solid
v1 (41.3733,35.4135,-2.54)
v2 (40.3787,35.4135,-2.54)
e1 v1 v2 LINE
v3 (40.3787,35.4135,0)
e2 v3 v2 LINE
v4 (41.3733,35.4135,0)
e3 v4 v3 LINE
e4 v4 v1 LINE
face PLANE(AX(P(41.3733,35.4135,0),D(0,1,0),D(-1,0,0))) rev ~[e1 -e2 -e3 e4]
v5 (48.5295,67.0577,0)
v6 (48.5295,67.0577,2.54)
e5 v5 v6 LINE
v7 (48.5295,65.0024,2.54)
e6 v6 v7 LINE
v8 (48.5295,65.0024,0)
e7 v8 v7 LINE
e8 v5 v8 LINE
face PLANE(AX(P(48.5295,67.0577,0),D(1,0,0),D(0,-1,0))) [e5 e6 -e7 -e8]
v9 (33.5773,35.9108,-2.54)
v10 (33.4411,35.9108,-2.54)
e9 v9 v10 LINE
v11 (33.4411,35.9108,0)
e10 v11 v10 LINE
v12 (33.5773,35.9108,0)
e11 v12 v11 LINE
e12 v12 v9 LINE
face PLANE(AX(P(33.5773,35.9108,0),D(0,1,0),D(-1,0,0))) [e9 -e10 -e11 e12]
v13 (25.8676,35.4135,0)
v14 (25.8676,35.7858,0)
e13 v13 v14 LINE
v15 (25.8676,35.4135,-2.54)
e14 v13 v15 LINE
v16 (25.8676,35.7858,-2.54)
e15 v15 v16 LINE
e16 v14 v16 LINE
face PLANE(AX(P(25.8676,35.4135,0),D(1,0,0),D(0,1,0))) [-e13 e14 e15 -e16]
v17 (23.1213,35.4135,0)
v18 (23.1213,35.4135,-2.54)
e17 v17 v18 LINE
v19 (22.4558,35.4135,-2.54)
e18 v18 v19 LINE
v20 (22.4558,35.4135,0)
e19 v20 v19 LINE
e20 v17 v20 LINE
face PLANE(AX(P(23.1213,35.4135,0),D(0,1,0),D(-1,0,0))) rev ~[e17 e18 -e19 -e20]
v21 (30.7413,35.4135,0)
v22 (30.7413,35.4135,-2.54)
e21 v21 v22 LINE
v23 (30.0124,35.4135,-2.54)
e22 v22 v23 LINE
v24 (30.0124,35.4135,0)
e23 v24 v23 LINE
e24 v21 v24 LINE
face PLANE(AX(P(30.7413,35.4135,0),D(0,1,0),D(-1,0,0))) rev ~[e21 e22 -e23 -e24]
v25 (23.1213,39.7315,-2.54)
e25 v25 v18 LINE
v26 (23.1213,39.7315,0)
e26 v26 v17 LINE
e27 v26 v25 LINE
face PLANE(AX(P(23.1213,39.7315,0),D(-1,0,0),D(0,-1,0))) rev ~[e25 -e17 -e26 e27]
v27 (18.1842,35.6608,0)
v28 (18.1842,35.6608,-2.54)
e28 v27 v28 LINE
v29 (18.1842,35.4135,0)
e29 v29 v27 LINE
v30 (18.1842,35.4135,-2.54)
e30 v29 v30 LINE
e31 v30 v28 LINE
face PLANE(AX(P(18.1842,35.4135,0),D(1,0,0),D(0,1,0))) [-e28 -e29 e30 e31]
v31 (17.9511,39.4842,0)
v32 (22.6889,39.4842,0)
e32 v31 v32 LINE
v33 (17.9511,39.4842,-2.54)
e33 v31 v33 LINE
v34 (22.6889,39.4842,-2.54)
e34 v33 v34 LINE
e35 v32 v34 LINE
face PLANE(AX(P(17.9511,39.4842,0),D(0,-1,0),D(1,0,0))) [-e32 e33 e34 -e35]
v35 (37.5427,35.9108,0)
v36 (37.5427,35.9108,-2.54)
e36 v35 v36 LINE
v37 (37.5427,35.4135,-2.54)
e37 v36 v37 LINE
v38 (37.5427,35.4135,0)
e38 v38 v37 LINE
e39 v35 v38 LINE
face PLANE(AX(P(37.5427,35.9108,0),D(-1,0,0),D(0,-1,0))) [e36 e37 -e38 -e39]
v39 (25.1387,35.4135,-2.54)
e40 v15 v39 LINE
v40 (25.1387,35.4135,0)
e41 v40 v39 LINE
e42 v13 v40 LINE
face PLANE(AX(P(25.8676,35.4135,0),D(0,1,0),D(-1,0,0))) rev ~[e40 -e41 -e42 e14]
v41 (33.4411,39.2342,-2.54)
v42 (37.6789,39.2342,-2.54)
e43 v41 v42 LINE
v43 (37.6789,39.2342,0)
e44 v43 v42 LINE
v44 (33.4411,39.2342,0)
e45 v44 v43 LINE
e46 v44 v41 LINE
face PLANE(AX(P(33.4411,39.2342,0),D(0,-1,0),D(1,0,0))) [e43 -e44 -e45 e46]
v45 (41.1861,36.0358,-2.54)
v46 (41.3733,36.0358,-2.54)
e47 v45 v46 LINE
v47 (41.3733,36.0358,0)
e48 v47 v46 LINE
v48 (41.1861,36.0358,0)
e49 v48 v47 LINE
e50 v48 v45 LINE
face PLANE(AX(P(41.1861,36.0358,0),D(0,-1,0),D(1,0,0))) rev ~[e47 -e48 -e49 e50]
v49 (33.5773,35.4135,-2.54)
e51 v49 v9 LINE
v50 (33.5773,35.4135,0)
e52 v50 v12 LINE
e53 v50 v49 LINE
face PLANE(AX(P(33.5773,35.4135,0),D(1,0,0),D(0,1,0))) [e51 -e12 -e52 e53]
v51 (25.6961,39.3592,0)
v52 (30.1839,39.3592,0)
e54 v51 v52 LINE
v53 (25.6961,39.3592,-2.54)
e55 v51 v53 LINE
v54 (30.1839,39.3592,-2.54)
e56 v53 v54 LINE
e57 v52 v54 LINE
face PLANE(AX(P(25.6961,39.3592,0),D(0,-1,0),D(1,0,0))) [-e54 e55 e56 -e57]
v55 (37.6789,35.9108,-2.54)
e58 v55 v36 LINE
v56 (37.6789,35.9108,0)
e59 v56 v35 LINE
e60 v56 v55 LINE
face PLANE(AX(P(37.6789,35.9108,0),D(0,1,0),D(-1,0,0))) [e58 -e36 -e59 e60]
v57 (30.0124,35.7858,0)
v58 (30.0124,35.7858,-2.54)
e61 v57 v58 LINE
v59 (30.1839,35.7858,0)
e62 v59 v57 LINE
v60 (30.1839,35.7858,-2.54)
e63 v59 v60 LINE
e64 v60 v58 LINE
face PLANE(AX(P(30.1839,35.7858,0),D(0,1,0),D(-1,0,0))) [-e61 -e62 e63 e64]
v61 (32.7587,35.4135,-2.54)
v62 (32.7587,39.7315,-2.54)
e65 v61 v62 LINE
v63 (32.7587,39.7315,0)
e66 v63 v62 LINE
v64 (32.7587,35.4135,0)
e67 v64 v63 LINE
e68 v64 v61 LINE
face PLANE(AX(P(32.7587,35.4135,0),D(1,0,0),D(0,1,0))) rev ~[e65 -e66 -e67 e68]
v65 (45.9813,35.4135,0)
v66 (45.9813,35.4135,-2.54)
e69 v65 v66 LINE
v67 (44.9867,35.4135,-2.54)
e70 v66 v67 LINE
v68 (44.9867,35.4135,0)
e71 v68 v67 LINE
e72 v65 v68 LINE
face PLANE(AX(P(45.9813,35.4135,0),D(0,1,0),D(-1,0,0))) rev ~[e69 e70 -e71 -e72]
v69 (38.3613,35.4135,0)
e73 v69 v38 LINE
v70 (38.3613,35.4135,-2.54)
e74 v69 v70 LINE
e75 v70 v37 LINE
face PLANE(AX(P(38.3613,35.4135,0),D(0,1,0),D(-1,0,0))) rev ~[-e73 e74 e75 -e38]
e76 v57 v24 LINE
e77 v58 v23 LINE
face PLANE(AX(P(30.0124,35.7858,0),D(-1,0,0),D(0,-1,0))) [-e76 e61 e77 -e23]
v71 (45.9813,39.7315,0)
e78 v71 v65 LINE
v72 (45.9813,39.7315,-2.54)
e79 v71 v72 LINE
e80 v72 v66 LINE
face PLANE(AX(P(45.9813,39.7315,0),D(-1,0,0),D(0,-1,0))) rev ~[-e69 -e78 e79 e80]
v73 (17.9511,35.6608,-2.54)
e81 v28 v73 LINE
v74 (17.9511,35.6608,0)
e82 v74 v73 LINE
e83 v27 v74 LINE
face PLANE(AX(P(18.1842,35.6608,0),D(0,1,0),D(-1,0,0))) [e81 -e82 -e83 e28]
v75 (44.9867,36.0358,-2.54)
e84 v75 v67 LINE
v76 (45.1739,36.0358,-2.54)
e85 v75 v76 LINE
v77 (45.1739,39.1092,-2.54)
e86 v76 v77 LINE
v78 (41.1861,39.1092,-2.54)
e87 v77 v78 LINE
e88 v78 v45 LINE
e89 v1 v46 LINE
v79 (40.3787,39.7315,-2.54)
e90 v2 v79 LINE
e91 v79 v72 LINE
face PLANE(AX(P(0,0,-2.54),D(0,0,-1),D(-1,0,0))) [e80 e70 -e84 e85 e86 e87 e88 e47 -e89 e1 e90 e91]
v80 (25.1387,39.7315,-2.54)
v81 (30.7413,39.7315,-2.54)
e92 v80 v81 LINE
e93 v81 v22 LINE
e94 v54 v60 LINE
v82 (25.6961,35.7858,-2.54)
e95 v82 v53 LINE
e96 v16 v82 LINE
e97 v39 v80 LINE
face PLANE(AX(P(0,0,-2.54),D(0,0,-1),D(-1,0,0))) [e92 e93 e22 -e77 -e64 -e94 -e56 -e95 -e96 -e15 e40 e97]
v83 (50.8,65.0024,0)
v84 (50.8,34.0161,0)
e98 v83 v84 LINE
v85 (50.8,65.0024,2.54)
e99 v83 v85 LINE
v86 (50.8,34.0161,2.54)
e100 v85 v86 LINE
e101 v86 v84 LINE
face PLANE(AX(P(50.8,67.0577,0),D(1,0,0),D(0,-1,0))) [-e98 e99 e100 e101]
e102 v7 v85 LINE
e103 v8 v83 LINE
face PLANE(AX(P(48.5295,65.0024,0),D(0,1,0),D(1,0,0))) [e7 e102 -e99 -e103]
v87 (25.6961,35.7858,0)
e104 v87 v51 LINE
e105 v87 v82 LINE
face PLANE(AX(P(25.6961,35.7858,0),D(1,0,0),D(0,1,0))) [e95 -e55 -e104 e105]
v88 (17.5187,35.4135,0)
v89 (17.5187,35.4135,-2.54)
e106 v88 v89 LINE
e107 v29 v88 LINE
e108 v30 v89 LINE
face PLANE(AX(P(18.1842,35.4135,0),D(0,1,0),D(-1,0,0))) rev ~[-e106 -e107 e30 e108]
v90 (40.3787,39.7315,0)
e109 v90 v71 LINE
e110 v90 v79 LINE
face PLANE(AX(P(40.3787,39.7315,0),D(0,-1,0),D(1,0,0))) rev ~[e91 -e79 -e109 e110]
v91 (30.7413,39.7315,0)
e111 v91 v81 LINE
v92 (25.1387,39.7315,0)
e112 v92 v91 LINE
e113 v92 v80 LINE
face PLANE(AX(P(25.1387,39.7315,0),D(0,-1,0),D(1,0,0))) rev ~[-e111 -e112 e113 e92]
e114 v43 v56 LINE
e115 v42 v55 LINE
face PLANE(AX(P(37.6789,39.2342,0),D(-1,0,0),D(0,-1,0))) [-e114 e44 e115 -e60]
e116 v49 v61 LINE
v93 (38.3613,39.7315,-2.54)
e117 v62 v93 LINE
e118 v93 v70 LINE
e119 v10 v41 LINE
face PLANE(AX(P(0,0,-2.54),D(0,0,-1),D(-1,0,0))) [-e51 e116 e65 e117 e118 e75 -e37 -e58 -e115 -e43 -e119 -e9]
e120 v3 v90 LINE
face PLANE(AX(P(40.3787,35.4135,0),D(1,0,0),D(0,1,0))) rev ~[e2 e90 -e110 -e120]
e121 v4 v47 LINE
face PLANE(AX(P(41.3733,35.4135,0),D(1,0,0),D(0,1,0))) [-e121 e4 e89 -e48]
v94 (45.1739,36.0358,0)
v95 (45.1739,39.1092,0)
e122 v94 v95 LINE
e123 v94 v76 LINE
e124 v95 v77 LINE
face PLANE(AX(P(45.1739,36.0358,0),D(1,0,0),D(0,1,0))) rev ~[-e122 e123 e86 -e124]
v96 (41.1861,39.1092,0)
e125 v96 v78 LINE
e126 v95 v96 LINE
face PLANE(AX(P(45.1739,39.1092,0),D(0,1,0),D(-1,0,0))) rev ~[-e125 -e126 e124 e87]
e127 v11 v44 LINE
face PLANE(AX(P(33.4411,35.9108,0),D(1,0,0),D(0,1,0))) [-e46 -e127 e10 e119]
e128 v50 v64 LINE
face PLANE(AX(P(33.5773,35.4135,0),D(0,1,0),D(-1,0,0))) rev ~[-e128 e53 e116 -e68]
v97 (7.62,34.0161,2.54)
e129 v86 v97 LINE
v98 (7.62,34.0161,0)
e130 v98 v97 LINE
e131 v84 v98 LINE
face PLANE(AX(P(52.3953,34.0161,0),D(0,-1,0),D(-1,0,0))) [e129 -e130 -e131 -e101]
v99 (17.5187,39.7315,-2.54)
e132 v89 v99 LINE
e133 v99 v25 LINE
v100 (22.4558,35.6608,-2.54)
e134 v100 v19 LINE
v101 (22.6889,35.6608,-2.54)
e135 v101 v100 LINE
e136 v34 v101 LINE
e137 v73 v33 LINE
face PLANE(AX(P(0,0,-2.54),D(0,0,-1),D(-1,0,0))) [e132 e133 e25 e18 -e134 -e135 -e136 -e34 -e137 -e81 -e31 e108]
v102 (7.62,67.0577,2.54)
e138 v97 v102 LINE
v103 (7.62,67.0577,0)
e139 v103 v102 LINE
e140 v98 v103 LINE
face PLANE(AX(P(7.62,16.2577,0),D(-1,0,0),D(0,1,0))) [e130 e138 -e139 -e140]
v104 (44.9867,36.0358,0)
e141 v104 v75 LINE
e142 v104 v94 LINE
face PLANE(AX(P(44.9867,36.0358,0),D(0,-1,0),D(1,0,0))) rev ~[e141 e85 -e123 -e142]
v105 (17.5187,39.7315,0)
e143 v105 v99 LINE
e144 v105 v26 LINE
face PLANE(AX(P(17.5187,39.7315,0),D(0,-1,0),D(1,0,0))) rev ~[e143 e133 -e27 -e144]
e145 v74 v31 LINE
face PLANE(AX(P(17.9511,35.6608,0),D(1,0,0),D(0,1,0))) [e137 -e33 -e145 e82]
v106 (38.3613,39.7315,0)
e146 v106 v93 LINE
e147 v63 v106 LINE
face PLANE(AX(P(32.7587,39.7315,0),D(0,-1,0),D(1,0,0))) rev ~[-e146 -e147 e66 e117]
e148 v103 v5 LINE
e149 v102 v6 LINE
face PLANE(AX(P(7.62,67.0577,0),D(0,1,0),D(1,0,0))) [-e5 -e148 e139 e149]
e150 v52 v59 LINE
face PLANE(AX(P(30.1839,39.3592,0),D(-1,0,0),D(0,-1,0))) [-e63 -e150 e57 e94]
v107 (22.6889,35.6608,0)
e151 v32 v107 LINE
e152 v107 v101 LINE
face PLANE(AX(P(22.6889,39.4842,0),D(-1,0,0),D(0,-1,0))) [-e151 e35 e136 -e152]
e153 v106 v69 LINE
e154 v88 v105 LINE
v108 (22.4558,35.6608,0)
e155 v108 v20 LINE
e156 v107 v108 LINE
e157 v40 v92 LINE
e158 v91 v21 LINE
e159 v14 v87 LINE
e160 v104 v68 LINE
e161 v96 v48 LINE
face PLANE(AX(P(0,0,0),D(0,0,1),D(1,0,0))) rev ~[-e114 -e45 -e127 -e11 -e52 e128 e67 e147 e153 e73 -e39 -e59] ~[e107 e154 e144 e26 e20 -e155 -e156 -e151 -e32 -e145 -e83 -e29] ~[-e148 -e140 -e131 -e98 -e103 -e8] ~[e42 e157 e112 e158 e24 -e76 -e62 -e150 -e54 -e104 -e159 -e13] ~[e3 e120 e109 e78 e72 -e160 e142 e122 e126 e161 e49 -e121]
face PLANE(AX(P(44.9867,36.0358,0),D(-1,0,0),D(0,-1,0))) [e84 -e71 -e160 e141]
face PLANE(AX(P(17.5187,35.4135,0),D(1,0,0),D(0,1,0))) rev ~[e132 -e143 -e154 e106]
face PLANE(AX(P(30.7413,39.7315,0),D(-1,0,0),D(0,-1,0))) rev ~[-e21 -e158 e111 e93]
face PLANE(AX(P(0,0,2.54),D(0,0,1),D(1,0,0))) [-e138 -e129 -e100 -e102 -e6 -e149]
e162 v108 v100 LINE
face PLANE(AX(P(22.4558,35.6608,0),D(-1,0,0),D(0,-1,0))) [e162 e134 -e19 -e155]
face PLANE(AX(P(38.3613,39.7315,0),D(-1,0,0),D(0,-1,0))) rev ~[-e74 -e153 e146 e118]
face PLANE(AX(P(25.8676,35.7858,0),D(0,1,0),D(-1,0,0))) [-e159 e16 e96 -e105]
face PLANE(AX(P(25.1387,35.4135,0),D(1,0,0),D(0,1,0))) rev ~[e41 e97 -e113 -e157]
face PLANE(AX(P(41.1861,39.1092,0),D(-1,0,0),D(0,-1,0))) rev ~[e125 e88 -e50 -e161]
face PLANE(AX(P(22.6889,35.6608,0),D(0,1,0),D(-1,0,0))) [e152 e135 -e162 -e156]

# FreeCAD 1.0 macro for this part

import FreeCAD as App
import Part
import Sketcher
Q = App.Units.Quantity

doc = App.newDocument("Part")
params = doc.addObject("Spreadsheet::Sheet", "Params")
for row, (alias, value) in enumerate([
    ("sketch1_height", "2 in"),
    ("sketch1_width", "1.7 in"),
    ("pad1_length", "0.1 in"),
    ("pocket1_length", "0.1 in"),
    ("sketch3_width", "0.157 in"),
    ("sketch3_height", "0.121 in"),
    ("sketch3_height2", "0.17 in"),
    ("pad2_length", "0.1 in"),
    ("pocket2_length", "0.1 in"),
], start=1):
    params.set(f"A{row}", alias)
    params.set(f"B{row}", "=" + value)
    params.setAlias(f"B{row}", alias)

body = doc.addObject("PartDesign::Body", "Body")

sketch1 = body.newObject("Sketcher::SketchObject", "Sketch")
sketch1.AttachmentSupport = (doc.getObject("XY_Plane"), [""])
sketch1.MapMode = "FlatFace"
sketch1.addGeometry(Part.LineSegment(App.Vector(51, 67, 0), App.Vector(8, 67, 0)), False)
sketch1.addGeometry(Part.LineSegment(App.Vector(8, 67, 0), App.Vector(8, 16, 0)), False)
sketch1.addGeometry(Part.LineSegment(App.Vector(8, 16, 0), App.Vector(51, 16, 0)), False)
sketch1.addGeometry(Part.LineSegment(App.Vector(51, 16, 0), App.Vector(51, 67, 0)), False)
sketch1.addConstraint(Sketcher.Constraint("Coincident", 0, 2, 1, 1))
sketch1.addConstraint(Sketcher.Constraint("Coincident", 1, 2, 2, 1))
sketch1.addConstraint(Sketcher.Constraint("Coincident", 2, 2, 3, 1))
sketch1.addConstraint(Sketcher.Constraint("Coincident", 3, 2, 0, 1))
sketch1.addConstraint(Sketcher.Constraint("Horizontal", 0))
sketch1.addConstraint(Sketcher.Constraint("Vertical", 1))
sketch1.addConstraint(Sketcher.Constraint("Horizontal", 2))
sketch1.addConstraint(Sketcher.Constraint("Vertical", 3))
sketch1.addConstraint(Sketcher.Constraint("DistanceY", 1, 2, 1, 1, Q("2 in")))
sketch1.addConstraint(Sketcher.Constraint("DistanceX", 0, 2, 0, 1, Q("1.7 in")))
sketch1.addConstraint(Sketcher.Constraint("DistanceX", -1, 1, 2, 2, Q("2 in")))
sketch1.addConstraint(Sketcher.Constraint("DistanceY", -1, 1, 0, 2, Q("67.0577 mm")))
sketch1.setExpression("Constraints[8]", "Params.sketch1_height")
sketch1.setExpression("Constraints[9]", "Params.sketch1_width")
pad1 = body.newObject("PartDesign::Pad", "Pad")
pad1.Profile = sketch1
pad1.setExpression("Length", "Params.pad1_length")

sketch2 = body.newObject("Sketcher::SketchObject", "Sketch001")
sketch2.AttachmentSupport = (doc.getObject("XY_Plane"), [""])
sketch2.MapMode = "FlatFace"
sketch2.addGeometry(Part.LineSegment(App.Vector(48.5, 67.1, 0), App.Vector(50.8, 67.1, 0)), False)
sketch2.addGeometry(Part.LineSegment(App.Vector(50.8, 67.1, 0), App.Vector(50.8, 65, 0)), False)
sketch2.addGeometry(Part.LineSegment(App.Vector(50.8, 65, 0), App.Vector(48.5, 65, 0)), False)
sketch2.addGeometry(Part.LineSegment(App.Vector(48.5, 65, 0), App.Vector(48.5, 67.1, 0)), False)
sketch2.addConstraint(Sketcher.Constraint("Coincident", 0, 2, 1, 1))
sketch2.addConstraint(Sketcher.Constraint("Coincident", 1, 2, 2, 1))
sketch2.addConstraint(Sketcher.Constraint("Coincident", 2, 2, 3, 1))
sketch2.addConstraint(Sketcher.Constraint("Coincident", 3, 2, 0, 1))
sketch2.addConstraint(Sketcher.Constraint("Horizontal", 0))
sketch2.addConstraint(Sketcher.Constraint("Vertical", 1))
sketch2.addConstraint(Sketcher.Constraint("Horizontal", 2))
sketch2.addConstraint(Sketcher.Constraint("Vertical", 3))
sketch2.addConstraint(Sketcher.Constraint("DistanceX", -1, 1, 0, 2, Q("2 in")))
sketch2.addConstraint(Sketcher.Constraint("DistanceX", 0, 1, 0, 2, Q("0.0894 in")))
sketch2.addConstraint(Sketcher.Constraint("DistanceY", 1, 2, 1, 1, Q("2.0553 mm")))
sketch2.addConstraint(Sketcher.Constraint("DistanceY", -1, 1, 0, 2, Q("67.0577 mm")))
pocket1 = body.newObject("PartDesign::Pocket", "Pocket")
pocket1.Profile = sketch2
pocket1.setExpression("Length", "Params.pocket1_length")
pocket1.Reversed = True

sketch3 = body.newObject("Sketcher::SketchObject", "Sketch002")
sketch3.AttachmentSupport = (doc.getObject("XY_Plane"), [""])
sketch3.MapMode = "FlatFace"
sketch3.addGeometry(Part.LineSegment(App.Vector(45.17, 36.04, 0), App.Vector(45.17, 39.11, 0)), False)
sketch3.addGeometry(Part.LineSegment(App.Vector(45.17, 39.11, 0), App.Vector(41.19, 39.11, 0)), False)
sketch3.addGeometry(Part.LineSegment(App.Vector(41.19, 39.11, 0), App.Vector(41.19, 36.04, 0)), False)
sketch3.addGeometry(Part.LineSegment(App.Vector(41.19, 36.04, 0), App.Vector(41.37, 36.04, 0)), False)
sketch3.addGeometry(Part.LineSegment(App.Vector(41.37, 36.04, 0), App.Vector(41.37, 35.41, 0)), False)
sketch3.addGeometry(Part.LineSegment(App.Vector(41.37, 35.41, 0), App.Vector(40.38, 35.41, 0)), False)
sketch3.addGeometry(Part.LineSegment(App.Vector(40.38, 35.41, 0), App.Vector(40.38, 39.73, 0)), False)
sketch3.addGeometry(Part.LineSegment(App.Vector(40.38, 39.73, 0), App.Vector(45.98, 39.73, 0)), False)
sketch3.addGeometry(Part.LineSegment(App.Vector(45.98, 39.73, 0), App.Vector(45.98, 35.41, 0)), False)
sketch3.addGeometry(Part.LineSegment(App.Vector(45.98, 35.41, 0), App.Vector(44.99, 35.41, 0)), False)
sketch3.addGeometry(Part.LineSegment(App.Vector(44.99, 35.41, 0), App.Vector(44.99, 36.04, 0)), False)
sketch3.addGeometry(Part.LineSegment(App.Vector(44.99, 36.04, 0), App.Vector(45.17, 36.04, 0)), False)
sketch3.addGeometry(Part.LineSegment(App.Vector(32.76, 35.41, 0), App.Vector(32.76, 39.73, 0)), False)
sketch3.addGeometry(Part.LineSegment(App.Vector(32.76, 39.73, 0), App.Vector(38.36, 39.73, 0)), False)
sketch3.addGeometry(Part.LineSegment(App.Vector(38.36, 39.73, 0), App.Vector(38.36, 35.41, 0)), False)
sketch3.addGeometry(Part.LineSegment(App.Vector(38.36, 35.41, 0), App.Vector(37.54, 35.41, 0)), False)
sketch3.addGeometry(Part.LineSegment(App.Vector(37.54, 35.41, 0), App.Vector(37.54, 35.91, 0)), False)
sketch3.addGeometry(Part.LineSegment(App.Vector(37.54, 35.91, 0), App.Vector(37.68, 35.91, 0)), False)
sketch3.addGeometry(Part.LineSegment(App.Vector(37.68, 35.91, 0), App.Vector(37.68, 39.23, 0)), False)
sketch3.addGeometry(Part.LineSegment(App.Vector(37.68, 39.23, 0), App.Vector(33.44, 39.23, 0)), False)
sketch3.addGeometry(Part.LineSegment(App.Vector(33.44, 39.23, 0), App.Vector(33.44, 35.91, 0)), False)
sketch3.addGeometry(Part.LineSegment(App.Vector(33.44, 35.91, 0), App.Vector(33.58, 35.91, 0)), False)
sketch3.addGeometry(Part.LineSegment(App.Vector(33.58, 35.91, 0), App.Vector(33.58, 35.41, 0)), False)
sketch3.addGeometry(Part.LineSegment(App.Vector(33.58, 35.41, 0), App.Vector(32.76, 35.41, 0)), False)
sketch3.addGeometry(Part.LineSegment(App.Vector(25.14, 35.41, 0), App.Vector(25.14, 39.73, 0)), False)
sketch3.addGeometry(Part.LineSegment(App.Vector(25.14, 39.73, 0), App.Vector(30.74, 39.73, 0)), False)
sketch3.addGeometry(Part.LineSegment(App.Vector(30.74, 39.73, 0), App.Vector(30.74, 35.41, 0)), False)
sketch3.addGeometry(Part.LineSegment(App.Vector(30.74, 35.41, 0), App.Vector(30.01, 35.41, 0)), False)
sketch3.addGeometry(Part.LineSegment(App.Vector(30.01, 35.41, 0), App.Vector(30.01, 35.79, 0)), False)
sketch3.addGeometry(Part.LineSegment(App.Vector(30.01, 35.79, 0), App.Vector(30.18, 35.79, 0)), False)
sketch3.addGeometry(Part.LineSegment(App.Vector(30.18, 35.79, 0), App.Vector(30.18, 39.36, 0)), False)
sketch3.addGeometry(Part.LineSegment(App.Vector(30.18, 39.36, 0), App.Vector(25.7, 39.36, 0)), False)
sketch3.addGeometry(Part.LineSegment(App.Vector(25.7, 39.36, 0), App.Vector(25.7, 35.79, 0)), False)
sketch3.addGeometry(Part.LineSegment(App.Vector(25.7, 35.79, 0), App.Vector(25.87, 35.79, 0)), False)
sketch3.addGeometry(Part.LineSegment(App.Vector(25.87, 35.79, 0), App.Vector(25.87, 35.41, 0)), False)
sketch3.addGeometry(Part.LineSegment(App.Vector(25.87, 35.41, 0), App.Vector(25.14, 35.41, 0)), False)
sketch3.addGeometry(Part.LineSegment(App.Vector(17.52, 35.41, 0), App.Vector(17.52, 39.73, 0)), False)
sketch3.addGeometry(Part.LineSegment(App.Vector(17.52, 39.73, 0), App.Vector(23.12, 39.73, 0)), False)
sketch3.addGeometry(Part.LineSegment(App.Vector(23.12, 39.73, 0), App.Vector(23.12, 35.41, 0)), False)
sketch3.addGeometry(Part.LineSegment(App.Vector(23.12, 35.41, 0), App.Vector(22.46, 35.41, 0)), False)
sketch3.addGeometry(Part.LineSegment(App.Vector(22.46, 35.41, 0), App.Vector(22.46, 35.66, 0)), False)
sketch3.addGeometry(Part.LineSegment(App.Vector(22.46, 35.66, 0), App.Vector(22.69, 35.66, 0)), False)
sketch3.addGeometry(Part.LineSegment(App.Vector(22.69, 35.66, 0), App.Vector(22.69, 39.48, 0)), False)
sketch3.addGeometry(Part.LineSegment(App.Vector(22.69, 39.48, 0), App.Vector(17.95, 39.48, 0)), False)
sketch3.addGeometry(Part.LineSegment(App.Vector(17.95, 39.48, 0), App.Vector(17.95, 35.66, 0)), False)
sketch3.addGeometry(Part.LineSegment(App.Vector(17.95, 35.66, 0), App.Vector(18.18, 35.66, 0)), False)
sketch3.addGeometry(Part.LineSegment(App.Vector(18.18, 35.66, 0), App.Vector(18.18, 35.41, 0)), False)
sketch3.addGeometry(Part.LineSegment(App.Vector(18.18, 35.41, 0), App.Vector(17.52, 35.41, 0)), False)
sketch3.addConstraint(Sketcher.Constraint("Coincident", 0, 2, 1, 1))
sketch3.addConstraint(Sketcher.Constraint("Coincident", 1, 2, 2, 1))
sketch3.addConstraint(Sketcher.Constraint("Coincident", 2, 2, 3, 1))
sketch3.addConstraint(Sketcher.Constraint("Coincident", 3, 2, 4, 1))
sketch3.addConstraint(Sketcher.Constraint("Coincident", 4, 2, 5, 1))
sketch3.addConstraint(Sketcher.Constraint("Coincident", 5, 2, 6, 1))
sketch3.addConstraint(Sketcher.Constraint("Coincident", 6, 2, 7, 1))
sketch3.addConstraint(Sketcher.Constraint("Coincident", 7, 2, 8, 1))
sketch3.addConstraint(Sketcher.Constraint("Coincident", 8, 2, 9, 1))
sketch3.addConstraint(Sketcher.Constraint("Coincident", 9, 2, 10, 1))
sketch3.addConstraint(Sketcher.Constraint("Coincident", 10, 2, 11, 1))
sketch3.addConstraint(Sketcher.Constraint("Coincident", 11, 2, 0, 1))
sketch3.addConstraint(Sketcher.Constraint("Coincident", 12, 2, 13, 1))
sketch3.addConstraint(Sketcher.Constraint("Coincident", 13, 2, 14, 1))
sketch3.addConstraint(Sketcher.Constraint("Coincident", 14, 2, 15, 1))
sketch3.addConstraint(Sketcher.Constraint("Coincident", 15, 2, 16, 1))
sketch3.addConstraint(Sketcher.Constraint("Coincident", 16, 2, 17, 1))
sketch3.addConstraint(Sketcher.Constraint("Coincident", 17, 2, 18, 1))
sketch3.addConstraint(Sketcher.Constraint("Coincident", 18, 2, 19, 1))
sketch3.addConstraint(Sketcher.Constraint("Coincident", 19, 2, 20, 1))
sketch3.addConstraint(Sketcher.Constraint("Coincident", 20, 2, 21, 1))
sketch3.addConstraint(Sketcher.Constraint("Coincident", 21, 2, 22, 1))
sketch3.addConstraint(Sketcher.Constraint("Coincident", 22, 2, 23, 1))
sketch3.addConstraint(Sketcher.Constraint("Coincident", 23, 2, 12, 1))
sketch3.addConstraint(Sketcher.Constraint("Coincident", 24, 2, 25, 1))
sketch3.addConstraint(Sketcher.Constraint("Coincident", 25, 2, 26, 1))
sketch3.addConstraint(Sketcher.Constraint("Coincident", 26, 2, 27, 1))
sketch3.addConstraint(Sketcher.Constraint("Coincident", 27, 2, 28, 1))
sketch3.addConstraint(Sketcher.Constraint("Coincident", 28, 2, 29, 1))
sketch3.addConstraint(Sketcher.Constraint("Coincident", 29, 2, 30, 1))
sketch3.addConstraint(Sketcher.Constraint("Coincident", 30, 2, 31, 1))
sketch3.addConstraint(Sketcher.Constraint("Coincident", 31, 2, 32, 1))
sketch3.addConstraint(Sketcher.Constraint("Coincident", 32, 2, 33, 1))
sketch3.addConstraint(Sketcher.Constraint("Coincident", 33, 2, 34, 1))
sketch3.addConstraint(Sketcher.Constraint("Coincident", 34, 2, 35, 1))
sketch3.addConstraint(Sketcher.Constraint("Coincident", 35, 2, 24, 1))
sketch3.addConstraint(Sketcher.Constraint("Coincident", 36, 2, 37, 1))
sketch3.addConstraint(Sketcher.Constraint("Coincident", 37, 2, 38, 1))
sketch3.addConstraint(Sketcher.Constraint("Coincident", 38, 2, 39, 1))
sketch3.addConstraint(Sketcher.Constraint("Coincident", 39, 2, 40, 1))
sketch3.addConstraint(Sketcher.Constraint("Coincident", 40, 2, 41, 1))
sketch3.addConstraint(Sketcher.Constraint("Coincident", 41, 2, 42, 1))
sketch3.addConstraint(Sketcher.Constraint("Coincident", 42, 2, 43, 1))
sketch3.addConstraint(Sketcher.Constraint("Coincident", 43, 2, 44, 1))
sketch3.addConstraint(Sketcher.Constraint("Coincident", 44, 2, 45, 1))
sketch3.addConstraint(Sketcher.Constraint("Coincident", 45, 2, 46, 1))
sketch3.addConstraint(Sketcher.Constraint("Coincident", 46, 2, 47, 1))
sketch3.addConstraint(Sketcher.Constraint("Coincident", 47, 2, 36, 1))
sketch3.addConstraint(Sketcher.Constraint("Vertical", 0))
sketch3.addConstraint(Sketcher.Constraint("Horizontal", 1))
sketch3.addConstraint(Sketcher.Constraint("Vertical", 2))
sketch3.addConstraint(Sketcher.Constraint("Horizontal", 3))
sketch3.addConstraint(Sketcher.Constraint("Vertical", 4))
sketch3.addConstraint(Sketcher.Constraint("Horizontal", 5))
sketch3.addConstraint(Sketcher.Constraint("Vertical", 6))
sketch3.addConstraint(Sketcher.Constraint("Horizontal", 7))
sketch3.addConstraint(Sketcher.Constraint("Vertical", 8))
sketch3.addConstraint(Sketcher.Constraint("Horizontal", 9))
sketch3.addConstraint(Sketcher.Constraint("Vertical", 10))
sketch3.addConstraint(Sketcher.Constraint("Horizontal", 11))
sketch3.addConstraint(Sketcher.Constraint("Vertical", 12))
sketch3.addConstraint(Sketcher.Constraint("Horizontal", 13))
sketch3.addConstraint(Sketcher.Constraint("Vertical", 14))
sketch3.addConstraint(Sketcher.Constraint("Horizontal", 15))
sketch3.addConstraint(Sketcher.Constraint("Vertical", 16))
sketch3.addConstraint(Sketcher.Constraint("Horizontal", 17))
sketch3.addConstraint(Sketcher.Constraint("Vertical", 18))
sketch3.addConstraint(Sketcher.Constraint("Horizontal", 19))
sketch3.addConstraint(Sketcher.Constraint("Vertical", 20))
sketch3.addConstraint(Sketcher.Constraint("Horizontal", 21))
sketch3.addConstraint(Sketcher.Constraint("Vertical", 22))
sketch3.addConstraint(Sketcher.Constraint("Horizontal", 23))
sketch3.addConstraint(Sketcher.Constraint("Vertical", 24))
sketch3.addConstraint(Sketcher.Constraint("Horizontal", 25))
sketch3.addConstraint(Sketcher.Constraint("Vertical", 26))
sketch3.addConstraint(Sketcher.Constraint("Horizontal", 27))
sketch3.addConstraint(Sketcher.Constraint("Vertical", 28))
sketch3.addConstraint(Sketcher.Constraint("Horizontal", 29))
sketch3.addConstraint(Sketcher.Constraint("Vertical", 30))
sketch3.addConstraint(Sketcher.Constraint("Horizontal", 31))
sketch3.addConstraint(Sketcher.Constraint("Vertical", 32))
sketch3.addConstraint(Sketcher.Constraint("Horizontal", 33))
sketch3.addConstraint(Sketcher.Constraint("Vertical", 34))
sketch3.addConstraint(Sketcher.Constraint("Horizontal", 35))
sketch3.addConstraint(Sketcher.Constraint("Vertical", 36))
sketch3.addConstraint(Sketcher.Constraint("Horizontal", 37))
sketch3.addConstraint(Sketcher.Constraint("Vertical", 38))
sketch3.addConstraint(Sketcher.Constraint("Horizontal", 39))
sketch3.addConstraint(Sketcher.Constraint("Vertical", 40))
sketch3.addConstraint(Sketcher.Constraint("Horizontal", 41))
sketch3.addConstraint(Sketcher.Constraint("Vertical", 42))
sketch3.addConstraint(Sketcher.Constraint("Horizontal", 43))
sketch3.addConstraint(Sketcher.Constraint("Vertical", 44))
sketch3.addConstraint(Sketcher.Constraint("Horizontal", 45))
sketch3.addConstraint(Sketcher.Constraint("Vertical", 46))
sketch3.addConstraint(Sketcher.Constraint("Horizontal", 47))
sketch3.addConstraint(Sketcher.Constraint("Horizontal", 5, 2, 8, 2))
sketch3.addConstraint(Sketcher.Constraint("Horizontal", 3, 2, 10, 2))
sketch3.addConstraint(Sketcher.Constraint("Horizontal", 7, 2, 12, 2))
sketch3.addConstraint(Sketcher.Constraint("Horizontal", 9, 2, 14, 2))
sketch3.addConstraint(Sketcher.Constraint("Horizontal", 17, 2, 20, 2))
sketch3.addConstraint(Sketcher.Constraint("Horizontal", 15, 2, 22, 2))
sketch3.addConstraint(Sketcher.Constraint("Horizontal", 13, 2, 24, 2))
sketch3.addConstraint(Sketcher.Constraint("Horizontal", 23, 2, 26, 2))
sketch3.addConstraint(Sketcher.Constraint("Horizontal", 29, 2, 32, 2))
sketch3.addConstraint(Sketcher.Constraint("Horizontal", 27, 2, 34, 2))
sketch3.addConstraint(Sketcher.Constraint("Horizontal", 25, 2, 36, 2))
sketch3.addConstraint(Sketcher.Constraint("Horizontal", 35, 2, 38, 2))
sketch3.addConstraint(Sketcher.Constraint("Horizontal", 41, 2, 44, 2))
sketch3.addConstraint(Sketcher.Constraint("Horizontal", 39, 2, 46, 2))
sketch3.addConstraint(Sketcher.Constraint("Equal", 5, 9))
sketch3.addConstraint(Sketcher.Constraint("Equal", 3, 11))
sketch3.addConstraint(Sketcher.Constraint("Equal", 7, 13))
sketch3.addConstraint(Sketcher.Constraint("Equal", 17, 21))
sketch3.addConstraint(Sketcher.Constraint("Equal", 15, 23))
sketch3.addConstraint(Sketcher.Constraint("Equal", 13, 25))
sketch3.addConstraint(Sketcher.Constraint("Equal", 29, 33))
sketch3.addConstraint(Sketcher.Constraint("Equal", 27, 35))
sketch3.addConstraint(Sketcher.Constraint("Equal", 25, 37))
sketch3.addConstraint(Sketcher.Constraint("Equal", 41, 45))
sketch3.addConstraint(Sketcher.Constraint("Equal", 39, 47))
sketch3.addConstraint(Sketcher.Constraint("DistanceX", 12, 2, 6, 2, Q("0.3 in")))
sketch3.addConstraint(Sketcher.Constraint("DistanceX", 24, 2, 12, 2, Q("0.3 in")))
sketch3.addConstraint(Sketcher.Constraint("DistanceX", 36, 2, 24, 2, Q("0.3 in")))
sketch3.addConstraint(Sketcher.Constraint("DistanceX", 1, 2, 1, 1, Q("0.157 in")))
sketch3.addConstraint(Sketcher.Constraint("DistanceY", 0, 1, 0, 2, Q("0.121 in")))
sketch3.addConstraint(Sketcher.Constraint("DistanceX", 19, 2, 19, 1, Q("4.2378 mm")))
sketch3.addConstraint(Sketcher.Constraint("DistanceX", 31, 2, 31, 1, Q("4.4878 mm")))
sketch3.addConstraint(Sketcher.Constraint("DistanceX", 43, 2, 43, 1, Q("4.7378 mm")))
sketch3.addConstraint(Sketcher.Constraint("DistanceY", 6, 1, 6, 2, Q("0.17 in")))
sketch3.addConstraint(Sketcher.Constraint("DistanceY", 18, 1, 18, 2, Q("3.3234 mm")))
sketch3.addConstraint(Sketcher.Constraint("DistanceY", 30, 1, 30, 2, Q("3.5734 mm")))
sketch3.addConstraint(Sketcher.Constraint("DistanceX", 27, 2, 27, 1, Q("0.0287 in")))
sketch3.addConstraint(Sketcher.Constraint("DistanceX", 39, 2, 39, 1, Q("0.0262 in")))
sketch3.addConstraint(Sketcher.Constraint("DistanceY", 4, 2, 4, 1, Q("0.0245 in")))
sketch3.addConstraint(Sketcher.Constraint("DistanceX", 27, 2, 20, 2, Q("0.135 in")))
sketch3.addConstraint(Sketcher.Constraint("DistanceX", 3, 1, 3, 2, Q("0.1872 mm")))
sketch3.addConstraint(Sketcher.Constraint("DistanceX", 15, 2, 15, 1, Q("0.8186 mm")))
sketch3.addConstraint(Sketcher.Constraint("DistanceY", 16, 1, 16, 2, Q("0.4973 mm")))
sketch3.addConstraint(Sketcher.Constraint("DistanceY", 28, 1, 28, 2, Q("0.3723 mm")))
sketch3.addConstraint(Sketcher.Constraint("DistanceY", 40, 1, 40, 2, Q("0.2473 mm")))
sketch3.addConstraint(Sketcher.Constraint("DistanceY", 42, 1, 42, 2, Q("3.8234 mm")))
sketch3.addConstraint(Sketcher.Constraint("DistanceX", -1, 1, 0, 2, Q("1.7785 in")))
sketch3.addConstraint(Sketcher.Constraint("DistanceY", -1, 1, 16, 2, Q("1.4138 in")))
sketch3.setExpression("Constraints[124]", "Params.sketch3_width")
sketch3.setExpression("Constraints[125]", "Params.sketch3_height")
sketch3.setExpression("Constraints[129]", "Params.sketch3_height2")
pad2 = body.newObject("PartDesign::Pad", "Pad001")
pad2.Profile = sketch3
pad2.setExpression("Length", "Params.pad2_length")
pad2.Reversed = True

sketch4 = body.newObject("Sketcher::SketchObject", "Sketch003")
sketch4.AttachmentSupport = (doc.getObject("XY_Plane"), [""])
sketch4.MapMode = "FlatFace"
sketch4.addGeometry(Part.LineSegment(App.Vector(5, 34, 0), App.Vector(52, 34, 0)), False)
sketch4.addGeometry(Part.LineSegment(App.Vector(52, 34, 0), App.Vector(52, 12, 0)), False)
sketch4.addGeometry(Part.LineSegment(App.Vector(52, 12, 0), App.Vector(5, 12, 0)), False)
sketch4.addGeometry(Part.LineSegment(App.Vector(5, 12, 0), App.Vector(5, 34, 0)), False)
sketch4.addConstraint(Sketcher.Constraint("Coincident", 0, 2, 1, 1))
sketch4.addConstraint(Sketcher.Constraint("Coincident", 1, 2, 2, 1))
sketch4.addConstraint(Sketcher.Constraint("Coincident", 2, 2, 3, 1))
sketch4.addConstraint(Sketcher.Constraint("Coincident", 3, 2, 0, 1))
sketch4.addConstraint(Sketcher.Constraint("Horizontal", 0))
sketch4.addConstraint(Sketcher.Constraint("Vertical", 1))
sketch4.addConstraint(Sketcher.Constraint("Horizontal", 2))
sketch4.addConstraint(Sketcher.Constraint("Vertical", 3))
sketch4.addConstraint(Sketcher.Constraint("DistanceX", 0, 1, 0, 2, Q("47.6692 mm")))
sketch4.addConstraint(Sketcher.Constraint("DistanceY", 1, 2, 1, 1, Q("21.7633 mm")))
sketch4.addConstraint(Sketcher.Constraint("DistanceX", -1, 1, 0, 2, Q("2.0628 in")))
sketch4.addConstraint(Sketcher.Constraint("DistanceY", -1, 1, 1, 2, Q("0.4824 in")))
pocket2 = body.newObject("PartDesign::Pocket", "Pocket001")
pocket2.Profile = sketch4
pocket2.setExpression("Length", "Params.pocket2_length")
pocket2.Reversed = True

doc.recompute()
